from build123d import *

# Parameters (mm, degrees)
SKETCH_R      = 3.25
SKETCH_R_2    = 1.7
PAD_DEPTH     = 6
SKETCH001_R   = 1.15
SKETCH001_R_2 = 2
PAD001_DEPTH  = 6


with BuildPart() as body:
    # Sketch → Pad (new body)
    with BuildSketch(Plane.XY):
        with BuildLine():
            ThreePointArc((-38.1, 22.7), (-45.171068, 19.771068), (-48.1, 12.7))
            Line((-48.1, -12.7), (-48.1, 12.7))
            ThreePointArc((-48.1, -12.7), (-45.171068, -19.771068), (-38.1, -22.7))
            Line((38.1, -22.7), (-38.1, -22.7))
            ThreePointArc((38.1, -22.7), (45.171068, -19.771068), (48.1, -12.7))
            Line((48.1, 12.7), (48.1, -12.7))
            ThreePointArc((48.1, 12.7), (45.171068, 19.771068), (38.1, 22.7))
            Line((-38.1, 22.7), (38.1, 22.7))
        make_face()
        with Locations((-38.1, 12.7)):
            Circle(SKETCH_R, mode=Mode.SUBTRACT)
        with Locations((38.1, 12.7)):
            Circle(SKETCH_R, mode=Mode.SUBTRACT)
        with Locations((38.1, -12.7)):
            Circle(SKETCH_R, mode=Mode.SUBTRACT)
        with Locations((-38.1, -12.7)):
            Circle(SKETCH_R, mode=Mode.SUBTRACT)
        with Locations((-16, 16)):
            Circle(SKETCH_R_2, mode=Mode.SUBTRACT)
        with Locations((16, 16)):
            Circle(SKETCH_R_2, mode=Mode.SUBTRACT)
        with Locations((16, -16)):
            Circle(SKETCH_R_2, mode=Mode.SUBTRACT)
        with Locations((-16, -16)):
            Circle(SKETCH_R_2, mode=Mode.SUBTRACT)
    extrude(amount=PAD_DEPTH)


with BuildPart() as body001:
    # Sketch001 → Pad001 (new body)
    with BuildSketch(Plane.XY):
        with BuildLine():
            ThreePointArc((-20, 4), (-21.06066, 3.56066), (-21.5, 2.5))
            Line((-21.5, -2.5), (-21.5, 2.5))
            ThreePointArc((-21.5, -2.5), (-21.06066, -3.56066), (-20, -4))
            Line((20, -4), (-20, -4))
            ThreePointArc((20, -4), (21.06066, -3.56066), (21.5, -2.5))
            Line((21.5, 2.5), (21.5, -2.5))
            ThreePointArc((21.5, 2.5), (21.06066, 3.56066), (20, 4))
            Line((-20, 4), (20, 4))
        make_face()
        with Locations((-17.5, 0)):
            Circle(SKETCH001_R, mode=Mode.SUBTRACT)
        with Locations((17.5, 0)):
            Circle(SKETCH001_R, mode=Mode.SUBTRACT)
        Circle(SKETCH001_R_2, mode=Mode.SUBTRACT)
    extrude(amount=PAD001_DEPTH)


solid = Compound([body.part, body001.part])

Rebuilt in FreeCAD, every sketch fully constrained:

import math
import FreeCAD as App
import Part
import Sketcher

doc = App.newDocument("Part")
params = doc.addObject("Spreadsheet::Sheet", "Params")
for row, (alias, value) in enumerate([
    ("sketch1_radius", "9.999999 mm"),
    ("sketch1_diameter", "6.5 mm"),
    ("sketch1_diameter2", "3.4 mm"),
    ("sketch1_width", "76.2 mm"),
    ("sketch1_height", "25.4 mm"),
    ("pad1_length", "6 mm"),
    ("sketch2_diameter", "4 mm"),
    ("sketch2_diameter2", "2.3 mm"),
    ("sketch2_radius", "1.500001 mm"),
    ("sketch2_width", "40 mm"),
    ("sketch2_height", "5 mm"),
    ("pad2_length", "6 mm"),
], start=1):
    params.set(f"A{row}", alias)
    params.set(f"B{row}", "=" + value)
    params.setAlias(f"B{row}", alias)

body = doc.addObject("PartDesign::Body", "Body")

# Sketch on XY plane
sketch1 = body.newObject("Sketcher::SketchObject", "Sketch")
sketch1.AttachmentSupport = (doc.getObject("XY_Plane"), [""])
sketch1.MapMode = "FlatFace"
sketch1.addGeometry([
    Part.ArcOfCircle(Part.Circle(App.Vector(-38.1, 12.7, 0), App.Vector(0, 0, 1), 10), math.radians(90), math.radians(180)),  # 0
    Part.LineSegment(App.Vector(-48.1, 12.7, 0), App.Vector(-48.1, -12.7, 0)),  # 1
    Part.ArcOfCircle(Part.Circle(App.Vector(-38.1, -12.7, 0), App.Vector(0, 0, 1), 10), math.radians(180), math.radians(270)),  # 2
    Part.LineSegment(App.Vector(-38.1, -22.7, 0), App.Vector(38.1, -22.7, 0)),  # 3
    Part.ArcOfCircle(Part.Circle(App.Vector(38.1, -12.7, 0), App.Vector(0, 0, 1), 10), math.radians(-90), math.radians(0)),  # 4
    Part.LineSegment(App.Vector(48.1, -12.7, 0), App.Vector(48.1, 12.7, 0)),  # 5
    Part.ArcOfCircle(Part.Circle(App.Vector(38.1, 12.7, 0), App.Vector(0, 0, 1), 10), math.radians(0), math.radians(90)),  # 6
    Part.LineSegment(App.Vector(38.1, 22.7, 0), App.Vector(-38.1, 22.7, 0)),  # 7
    Part.Circle(App.Vector(-38.1, -12.7, 0), App.Vector(0, 0, 1), 3.2),  # 8
    Part.Circle(App.Vector(-16, -16, 0), App.Vector(0, 0, 1), 1.7),  # 9
    Part.Circle(App.Vector(16, -16, 0), App.Vector(0, 0, 1), 1.7),  # 10
    Part.Circle(App.Vector(38.1, -12.7, 0), App.Vector(0, 0, 1), 3.2),  # 11
    Part.Circle(App.Vector(-38.1, 12.7, 0), App.Vector(0, 0, 1), 3.2),  # 12
    Part.Circle(App.Vector(-16, 16, 0), App.Vector(0, 0, 1), 1.7),  # 13
    Part.Circle(App.Vector(16, 16, 0), App.Vector(0, 0, 1), 1.7),  # 14
    Part.Circle(App.Vector(38.1, 12.7, 0), App.Vector(0, 0, 1), 3.2),  # 15
], False)
sketch1.addConstraint([
    Sketcher.Constraint("Tangent", 0, 2, 1, 1),
    Sketcher.Constraint("Tangent", 1, 2, 2, 1),
    Sketcher.Constraint("Tangent", 2, 2, 3, 1),
    Sketcher.Constraint("Tangent", 3, 2, 4, 1),
    Sketcher.Constraint("Tangent", 4, 2, 5, 1),
    Sketcher.Constraint("Tangent", 5, 2, 6, 1),
    Sketcher.Constraint("Tangent", 6, 2, 7, 1),
    Sketcher.Constraint("Tangent", 7, 2, 0, 1),
    Sketcher.Constraint("Vertical", 1),
    Sketcher.Constraint("Horizontal", 3),
    Sketcher.Constraint("Vertical", 5),
    Sketcher.Constraint("Horizontal", 7),
    Sketcher.Constraint("Coincident", 8, 3, 2, 3),
    Sketcher.Constraint("Coincident", 11, 3, 4, 3),
    Sketcher.Constraint("Coincident", 12, 3, 0, 3),
    Sketcher.Constraint("Coincident", 15, 3, 6, 3),
    Sketcher.Constraint("Equal", 0, 2),
    Sketcher.Constraint("Equal", 2, 4),
    Sketcher.Constraint("Equal", 4, 6),
    Sketcher.Constraint("Equal", 9, 10),
    Sketcher.Constraint("Equal", 8, 11),
    Sketcher.Constraint("Equal", 11, 12),
    Sketcher.Constraint("Equal", 10, 13),
    Sketcher.Constraint("Equal", 13, 14),
    Sketcher.Constraint("Equal", 12, 15),
    Sketcher.Constraint("Symmetric", 0, 3, 4, 3, -1, 1),
    Sketcher.Constraint("Symmetric", 10, 3, 13, 3, -1, 1),
    Sketcher.Constraint("Symmetric", 9, 3, 14, 3, -1, 1),
    Sketcher.Constraint("Symmetric", 9, 3, 10, 3, -2),
    Sketcher.Constraint("Radius", 0, 9.999999),
    Sketcher.Constraint("Diameter", 8, 6.5),
    Sketcher.Constraint("Diameter", 9, 3.4),
    Sketcher.Constraint("DistanceX", 3, 1, 3, 2, 76.2),
    Sketcher.Constraint("DistanceY", 1, 2, 1, 1, 25.4),
    Sketcher.Constraint("DistanceX", 9, 3, -1, 1, 16.0),
    Sketcher.Constraint("DistanceY", 9, 3, -1, 1, 16.0),
])
sketch1.setExpression("Constraints[29]", "Params.sketch1_radius")
sketch1.setExpression("Constraints[30]", "Params.sketch1_diameter")
sketch1.setExpression("Constraints[31]", "Params.sketch1_diameter2")
sketch1.setExpression("Constraints[32]", "Params.sketch1_width")
sketch1.setExpression("Constraints[33]", "Params.sketch1_height")
pad1 = body.newObject("PartDesign::Pad", "Pad")
pad1.Profile = sketch1
pad1.setExpression("Length", "Params.pad1_length")
body2 = doc.addObject("PartDesign::Body", "Body001")

# Sketch on XY plane
sketch2 = body2.newObject("Sketcher::SketchObject", "Sketch001")
sketch2.AttachmentSupport = (doc.getObject("XY_Plane001"), [""])
sketch2.MapMode = "FlatFace"
sketch2.addGeometry([
    Part.ArcOfCircle(Part.Circle(App.Vector(-20, 2.5, 0), App.Vector(0, 0, 1), 1.5), math.radians(90), math.radians(180)),  # 0
    Part.LineSegment(App.Vector(-21.5, 2.5, 0), App.Vector(-21.5, -2.5, 0)),  # 1
    Part.ArcOfCircle(Part.Circle(App.Vector(-20, -2.5, 0), App.Vector(0, 0, 1), 1.5), math.radians(-180), math.radians(-90)),  # 2
    Part.LineSegment(App.Vector(-20, -4, 0), App.Vector(20, -4, 0)),  # 3
    Part.ArcOfCircle(Part.Circle(App.Vector(20, -2.5, 0), App.Vector(0, 0, 1), 1.5), math.radians(-90), math.radians(0)),  # 4
    Part.LineSegment(App.Vector(21.5, -2.5, 0), App.Vector(21.5, 2.5, 0)),  # 5
    Part.ArcOfCircle(Part.Circle(App.Vector(20, 2.5, 0), App.Vector(0, 0, 1), 1.5), math.radians(0), math.radians(90)),  # 6
    Part.LineSegment(App.Vector(20, 4, 0), App.Vector(-20, 4, 0)),  # 7
    Part.Circle(App.Vector(-17.5, 0, 0), App.Vector(0, 0, 1), 1.1),  # 8
    Part.Circle(App.Vector(0, 0, 0), App.Vector(0, 0, 1), 2),  # 9
    Part.Circle(App.Vector(17.5, 0, 0), App.Vector(0, 0, 1), 1.1),  # 10
], False)
sketch2.addConstraint([
    Sketcher.Constraint("Tangent", 0, 2, 1, 1),
    Sketcher.Constraint("Tangent", 1, 2, 2, 1),
    Sketcher.Constraint("Tangent", 2, 2, 3, 1),
    Sketcher.Constraint("Tangent", 3, 2, 4, 1),
    Sketcher.Constraint("Tangent", 4, 2, 5, 1),
    Sketcher.Constraint("Tangent", 5, 2, 6, 1),
    Sketcher.Constraint("Tangent", 6, 2, 7, 1),
    Sketcher.Constraint("Tangent", 7, 2, 0, 1),
    Sketcher.Constraint("Vertical", 1),
    Sketcher.Constraint("Horizontal", 3),
    Sketcher.Constraint("Vertical", 5),
    Sketcher.Constraint("Horizontal", 7),
    Sketcher.Constraint("Coincident", 9, 3, -1, 1),
    Sketcher.Constraint("Equal", 0, 2),
    Sketcher.Constraint("Equal", 2, 4),
    Sketcher.Constraint("Equal", 4, 6),
    Sketcher.Constraint("Equal", 8, 10),
    Sketcher.Constraint("Symmetric", 0, 3, 4, 3, -1, 1),
    Sketcher.Constraint("Symmetric", 8, 3, 10, 3, -1, 1),
    Sketcher.Constraint("PointOnObject", 8, 3, -1),
    Sketcher.Constraint("Diameter", 9, 4.0),
    Sketcher.Constraint("Diameter", 8, 2.3),
    Sketcher.Constraint("Radius", 0, 1.500001),
    Sketcher.Constraint("DistanceX", 3, 1, 3, 2, 40.0),
    Sketcher.Constraint("DistanceY", 1, 2, 1, 1, 5.0),
    Sketcher.Constraint("DistanceX", 8, 3, 10, 3, 35.0),
])
sketch2.setExpression("Constraints[20]", "Params.sketch2_diameter")
sketch2.setExpression("Constraints[21]", "Params.sketch2_diameter2")
sketch2.setExpression("Constraints[22]", "Params.sketch2_radius")
sketch2.setExpression("Constraints[23]", "Params.sketch2_width")
sketch2.setExpression("Constraints[24]", "Params.sketch2_height")
pad2 = body2.newObject("PartDesign::Pad", "Pad001")
pad2.Profile = sketch2
pad2.setExpression("Length", "Params.pad2_length")

doc.recompute()
